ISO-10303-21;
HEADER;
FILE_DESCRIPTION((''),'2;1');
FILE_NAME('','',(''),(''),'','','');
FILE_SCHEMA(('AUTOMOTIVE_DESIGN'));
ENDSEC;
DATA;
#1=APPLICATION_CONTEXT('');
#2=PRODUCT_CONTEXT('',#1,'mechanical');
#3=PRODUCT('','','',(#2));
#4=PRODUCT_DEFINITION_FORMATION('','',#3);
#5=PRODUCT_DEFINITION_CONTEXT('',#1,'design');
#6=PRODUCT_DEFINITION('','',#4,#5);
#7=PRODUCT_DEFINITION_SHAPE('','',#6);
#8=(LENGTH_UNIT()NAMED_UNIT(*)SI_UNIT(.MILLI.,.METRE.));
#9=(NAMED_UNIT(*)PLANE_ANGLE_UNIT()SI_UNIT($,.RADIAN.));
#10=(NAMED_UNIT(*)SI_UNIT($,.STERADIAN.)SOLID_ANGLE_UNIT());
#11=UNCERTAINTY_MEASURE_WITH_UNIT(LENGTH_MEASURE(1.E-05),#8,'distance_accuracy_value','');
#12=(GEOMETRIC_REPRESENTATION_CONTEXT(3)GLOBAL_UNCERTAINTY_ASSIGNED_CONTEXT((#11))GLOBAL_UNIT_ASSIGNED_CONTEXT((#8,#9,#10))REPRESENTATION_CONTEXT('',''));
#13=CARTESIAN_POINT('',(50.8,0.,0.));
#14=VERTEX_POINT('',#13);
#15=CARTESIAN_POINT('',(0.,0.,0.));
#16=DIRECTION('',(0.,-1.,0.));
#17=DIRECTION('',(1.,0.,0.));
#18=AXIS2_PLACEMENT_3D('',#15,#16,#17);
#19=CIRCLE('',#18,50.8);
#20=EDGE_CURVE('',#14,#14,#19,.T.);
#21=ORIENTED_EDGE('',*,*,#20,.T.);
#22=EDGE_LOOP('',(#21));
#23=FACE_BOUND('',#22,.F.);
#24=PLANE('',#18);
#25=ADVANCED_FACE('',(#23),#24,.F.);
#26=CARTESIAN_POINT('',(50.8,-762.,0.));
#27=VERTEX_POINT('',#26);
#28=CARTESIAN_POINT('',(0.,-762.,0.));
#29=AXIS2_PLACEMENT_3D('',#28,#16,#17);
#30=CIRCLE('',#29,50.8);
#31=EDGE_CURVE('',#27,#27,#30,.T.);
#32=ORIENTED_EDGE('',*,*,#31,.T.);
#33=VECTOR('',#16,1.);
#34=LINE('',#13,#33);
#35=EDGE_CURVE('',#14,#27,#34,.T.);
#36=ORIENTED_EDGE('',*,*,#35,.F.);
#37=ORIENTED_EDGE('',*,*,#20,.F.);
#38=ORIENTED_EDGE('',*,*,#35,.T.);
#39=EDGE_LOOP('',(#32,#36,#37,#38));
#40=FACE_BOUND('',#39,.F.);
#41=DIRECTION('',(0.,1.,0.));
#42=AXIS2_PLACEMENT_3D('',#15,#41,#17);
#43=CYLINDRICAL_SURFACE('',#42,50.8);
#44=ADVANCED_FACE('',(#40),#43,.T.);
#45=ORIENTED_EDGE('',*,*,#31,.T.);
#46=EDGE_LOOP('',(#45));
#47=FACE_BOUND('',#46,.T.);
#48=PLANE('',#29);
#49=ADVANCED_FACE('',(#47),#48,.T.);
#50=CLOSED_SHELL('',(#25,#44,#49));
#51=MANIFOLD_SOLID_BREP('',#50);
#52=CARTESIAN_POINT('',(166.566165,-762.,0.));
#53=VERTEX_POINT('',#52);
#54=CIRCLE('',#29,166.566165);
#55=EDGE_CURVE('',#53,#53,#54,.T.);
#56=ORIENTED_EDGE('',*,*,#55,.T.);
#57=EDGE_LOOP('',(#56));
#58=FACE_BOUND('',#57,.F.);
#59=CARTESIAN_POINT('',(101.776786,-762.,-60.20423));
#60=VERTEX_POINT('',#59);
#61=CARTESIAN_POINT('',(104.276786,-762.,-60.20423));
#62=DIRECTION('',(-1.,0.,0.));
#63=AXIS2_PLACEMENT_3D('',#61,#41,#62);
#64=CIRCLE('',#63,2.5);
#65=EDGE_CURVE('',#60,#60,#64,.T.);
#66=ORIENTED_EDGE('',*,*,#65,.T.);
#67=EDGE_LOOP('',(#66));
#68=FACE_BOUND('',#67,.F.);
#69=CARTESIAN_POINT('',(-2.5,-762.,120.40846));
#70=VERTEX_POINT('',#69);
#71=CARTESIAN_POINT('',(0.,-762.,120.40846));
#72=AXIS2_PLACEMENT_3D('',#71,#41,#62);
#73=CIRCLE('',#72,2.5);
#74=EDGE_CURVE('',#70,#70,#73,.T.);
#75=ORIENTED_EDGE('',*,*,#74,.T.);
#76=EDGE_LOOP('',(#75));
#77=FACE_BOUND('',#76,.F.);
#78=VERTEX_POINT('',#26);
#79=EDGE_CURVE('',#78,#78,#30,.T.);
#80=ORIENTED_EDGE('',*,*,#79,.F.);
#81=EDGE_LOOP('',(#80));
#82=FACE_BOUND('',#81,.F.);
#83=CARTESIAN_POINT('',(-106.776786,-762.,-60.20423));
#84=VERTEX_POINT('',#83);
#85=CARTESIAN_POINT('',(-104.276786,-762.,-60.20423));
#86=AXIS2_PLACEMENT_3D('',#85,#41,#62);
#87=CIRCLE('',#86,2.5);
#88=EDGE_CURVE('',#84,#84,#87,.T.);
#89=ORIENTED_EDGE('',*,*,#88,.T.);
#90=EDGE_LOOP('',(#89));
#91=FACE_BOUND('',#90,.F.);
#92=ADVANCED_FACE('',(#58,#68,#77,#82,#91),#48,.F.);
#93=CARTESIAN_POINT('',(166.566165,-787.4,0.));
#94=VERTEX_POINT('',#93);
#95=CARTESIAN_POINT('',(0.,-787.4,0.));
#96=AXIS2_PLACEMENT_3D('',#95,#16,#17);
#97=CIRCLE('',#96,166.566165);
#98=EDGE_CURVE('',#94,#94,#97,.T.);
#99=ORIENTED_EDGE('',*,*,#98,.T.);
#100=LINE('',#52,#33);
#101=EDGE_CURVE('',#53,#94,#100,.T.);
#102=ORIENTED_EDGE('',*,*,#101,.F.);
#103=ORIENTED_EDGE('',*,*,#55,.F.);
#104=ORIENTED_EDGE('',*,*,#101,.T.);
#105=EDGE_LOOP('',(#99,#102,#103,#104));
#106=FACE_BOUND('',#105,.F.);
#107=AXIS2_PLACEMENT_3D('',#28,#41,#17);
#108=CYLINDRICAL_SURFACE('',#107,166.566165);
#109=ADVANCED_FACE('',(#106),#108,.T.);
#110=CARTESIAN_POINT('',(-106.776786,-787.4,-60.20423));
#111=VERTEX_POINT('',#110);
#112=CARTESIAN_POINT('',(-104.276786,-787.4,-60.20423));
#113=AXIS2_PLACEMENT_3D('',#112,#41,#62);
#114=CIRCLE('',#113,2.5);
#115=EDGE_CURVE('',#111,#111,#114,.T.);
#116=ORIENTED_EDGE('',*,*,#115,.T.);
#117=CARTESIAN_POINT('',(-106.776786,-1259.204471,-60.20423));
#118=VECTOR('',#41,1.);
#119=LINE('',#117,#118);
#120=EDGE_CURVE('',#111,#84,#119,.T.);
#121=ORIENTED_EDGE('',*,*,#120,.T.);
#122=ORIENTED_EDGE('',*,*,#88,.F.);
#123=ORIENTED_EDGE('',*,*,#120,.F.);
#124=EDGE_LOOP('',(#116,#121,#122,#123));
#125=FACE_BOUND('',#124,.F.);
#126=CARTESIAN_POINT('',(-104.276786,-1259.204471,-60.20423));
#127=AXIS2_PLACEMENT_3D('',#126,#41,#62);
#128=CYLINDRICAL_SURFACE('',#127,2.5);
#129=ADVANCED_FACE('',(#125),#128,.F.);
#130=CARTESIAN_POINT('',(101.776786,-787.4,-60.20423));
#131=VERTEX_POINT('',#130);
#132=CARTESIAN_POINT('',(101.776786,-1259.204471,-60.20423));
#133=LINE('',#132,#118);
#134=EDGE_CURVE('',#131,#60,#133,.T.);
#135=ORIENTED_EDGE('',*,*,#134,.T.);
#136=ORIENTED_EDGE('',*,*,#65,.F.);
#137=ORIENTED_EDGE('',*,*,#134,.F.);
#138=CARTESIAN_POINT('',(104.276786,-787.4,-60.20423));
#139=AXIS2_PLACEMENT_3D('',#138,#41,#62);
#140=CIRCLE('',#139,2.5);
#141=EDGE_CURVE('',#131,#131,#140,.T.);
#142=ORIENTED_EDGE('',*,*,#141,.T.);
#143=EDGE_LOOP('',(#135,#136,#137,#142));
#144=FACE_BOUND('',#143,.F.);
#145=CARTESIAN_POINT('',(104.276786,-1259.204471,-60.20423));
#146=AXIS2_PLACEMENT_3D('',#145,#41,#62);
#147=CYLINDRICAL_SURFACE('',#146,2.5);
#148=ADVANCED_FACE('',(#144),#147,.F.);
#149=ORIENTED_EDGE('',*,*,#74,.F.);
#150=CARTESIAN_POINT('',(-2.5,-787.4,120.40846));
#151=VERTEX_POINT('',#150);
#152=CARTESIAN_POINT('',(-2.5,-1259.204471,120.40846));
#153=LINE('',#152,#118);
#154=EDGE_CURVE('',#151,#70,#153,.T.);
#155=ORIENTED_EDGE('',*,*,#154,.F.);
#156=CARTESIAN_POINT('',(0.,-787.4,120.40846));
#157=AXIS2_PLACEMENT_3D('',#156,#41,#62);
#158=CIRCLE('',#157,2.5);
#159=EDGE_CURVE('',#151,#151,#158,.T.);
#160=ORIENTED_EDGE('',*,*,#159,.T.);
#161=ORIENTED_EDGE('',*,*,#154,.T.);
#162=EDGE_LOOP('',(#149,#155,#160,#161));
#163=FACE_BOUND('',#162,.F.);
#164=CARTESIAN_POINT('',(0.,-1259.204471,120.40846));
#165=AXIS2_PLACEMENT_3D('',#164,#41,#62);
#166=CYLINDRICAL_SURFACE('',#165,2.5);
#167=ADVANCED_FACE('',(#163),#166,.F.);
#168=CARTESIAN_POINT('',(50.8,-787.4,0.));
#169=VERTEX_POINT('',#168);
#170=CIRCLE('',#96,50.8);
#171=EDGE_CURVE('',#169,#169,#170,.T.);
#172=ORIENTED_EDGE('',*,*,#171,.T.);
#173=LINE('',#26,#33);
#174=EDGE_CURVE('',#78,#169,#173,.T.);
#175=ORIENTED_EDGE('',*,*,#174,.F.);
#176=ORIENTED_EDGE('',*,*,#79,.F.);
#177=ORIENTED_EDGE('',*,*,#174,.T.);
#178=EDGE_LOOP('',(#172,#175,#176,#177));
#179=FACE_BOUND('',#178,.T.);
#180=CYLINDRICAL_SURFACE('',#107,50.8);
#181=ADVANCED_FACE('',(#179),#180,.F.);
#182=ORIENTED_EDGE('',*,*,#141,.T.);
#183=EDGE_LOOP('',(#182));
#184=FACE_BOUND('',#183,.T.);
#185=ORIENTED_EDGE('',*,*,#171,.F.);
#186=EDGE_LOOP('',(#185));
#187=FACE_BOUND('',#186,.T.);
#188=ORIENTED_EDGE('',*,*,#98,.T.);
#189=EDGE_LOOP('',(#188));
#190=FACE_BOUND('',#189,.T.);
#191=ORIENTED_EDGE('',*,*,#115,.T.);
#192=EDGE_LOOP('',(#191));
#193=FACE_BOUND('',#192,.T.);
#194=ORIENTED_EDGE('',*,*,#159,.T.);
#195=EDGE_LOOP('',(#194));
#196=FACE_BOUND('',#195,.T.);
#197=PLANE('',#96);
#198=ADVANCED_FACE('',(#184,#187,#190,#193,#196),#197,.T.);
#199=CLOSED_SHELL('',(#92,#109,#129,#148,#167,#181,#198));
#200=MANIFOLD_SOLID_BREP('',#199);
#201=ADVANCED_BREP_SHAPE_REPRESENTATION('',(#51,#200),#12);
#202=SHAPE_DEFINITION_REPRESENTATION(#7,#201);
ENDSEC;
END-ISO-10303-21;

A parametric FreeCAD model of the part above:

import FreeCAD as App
import Part
import Sketcher
from FreeCAD import Vector
Q = App.Units.Quantity

doc = App.newDocument("Part")
params = doc.addObject("Spreadsheet::Sheet", "Params")
for row, (alias, value) in enumerate([
    ("sketch1_diameter", "4 in"),
    ("pad1_length", "30 in"),
    ("sketch2_diameter", "4 in"),
    ("pad2_length", "1 in"),
    ("hole_diameter", "5 mm"),
], start=1):
    params.set(f"A{row}", alias)
    params.set(f"B{row}", "=" + value)
    params.setAlias(f"B{row}", alias)

body = doc.addObject("PartDesign::Body", "Body")

sketch1 = body.newObject("Sketcher::SketchObject", "Sketch")
sketch1.AttachmentSupport = (doc.getObject("XZ_Plane"), [""])
sketch1.MapMode = "FlatFace"
sketch1.addGeometry(Part.Circle(Vector(0, 0, 0), Vector(0, 0, 1), 51), False)
sketch1.addConstraint(Sketcher.Constraint("Coincident", 0, 3, -1, 1))
sketch1.addConstraint(Sketcher.Constraint("Diameter", 0, Q("4 in")))
sketch1.setExpression("Constraints[1]", "Params.sketch1_diameter")
pad1 = body.newObject("PartDesign::Pad", "Pad")
pad1.Profile = sketch1
pad1.setExpression("Length", "Params.pad1_length")
body2 = doc.addObject("PartDesign::Body", "Body001")

sketch2 = body2.newObject("Sketcher::SketchObject", "Sketch001")
sketch2.AttachmentSupport = (doc.getObject("XZ_Plane001"), [""])
sketch2.MapMode = "FlatFace"
sketch2.AttachmentOffset = App.Placement(Vector(0, 0, 30 * 25.4), App.Rotation())
sketch2.addGeometry(Part.Circle(Vector(0, 0, 0), Vector(0, 0, 1), 167), False)
sketch2.addGeometry(Part.Circle(Vector(0, 0, 0), Vector(0, 0, 1), 51), False)
sketch2.addConstraint(Sketcher.Constraint("Coincident", 0, 3, -1, 1))
sketch2.addConstraint(Sketcher.Constraint("Coincident", 1, 3, -1, 1))
sketch2.addConstraint(Sketcher.Constraint("Diameter", 1, Q("4 in")))
sketch2.addConstraint(Sketcher.Constraint("Diameter", 0, 333.13233))
sketch2.setExpression("Constraints[2]", "Params.sketch2_diameter")
pad2 = body2.newObject("PartDesign::Pad", "Pad001")
pad2.Profile = sketch2
pad2.setExpression("Length", "Params.pad2_length")

sketch3 = body2.newObject("Sketcher::SketchObject", "Sketch002")
sketch3.AttachmentSupport = (doc.getObject("XZ_Plane001"), [""])
sketch3.MapMode = "FlatFace"
sketch3.AttachmentOffset = App.Placement(Vector(0, 0, 31 * 25.4), App.Rotation())
sketch3.addGeometry(Part.Circle(Vector(0, 120.4, 0), Vector(0, 0, 1), 2.5), False)
sketch3.addGeometry(Part.Circle(Vector(104.3, -60.2, 0), Vector(0, 0, 1), 2.5), False)
sketch3.addGeometry(Part.Circle(Vector(-104.3, -60.2, 0), Vector(0, 0, 1), 2.5), False)
sketch3.addConstraint(Sketcher.Constraint("Equal", 0, 1))
sketch3.addConstraint(Sketcher.Constraint("Equal", 1, 2))
sketch3.addConstraint(Sketcher.Constraint("Symmetric", 1, 3, 2, 3, -2))
sketch3.addConstraint(Sketcher.Constraint("PointOnObject", 0, 3, -2))
sketch3.addConstraint(Sketcher.Constraint("Diameter", 0, 5.0))
sketch3.addConstraint(Sketcher.Constraint("DistanceY", -1, 1, 0, 3, 120.40846))
sketch3.addConstraint(Sketcher.Constraint("DistanceY", 1, 3, -1, 1, 60.20423))
sketch3.addConstraint(Sketcher.Constraint("DistanceX", 2, 3, 1, 3, 208.553571))
doc.recompute()
hole = body2.newObject("PartDesign::Hole", "Hole")
hole.Profile = sketch3
hole.ThreadType = "None"
hole.setExpression("Diameter", "Params.hole_diameter")
hole.DepthType = "ThroughAll"

doc.recompute()
